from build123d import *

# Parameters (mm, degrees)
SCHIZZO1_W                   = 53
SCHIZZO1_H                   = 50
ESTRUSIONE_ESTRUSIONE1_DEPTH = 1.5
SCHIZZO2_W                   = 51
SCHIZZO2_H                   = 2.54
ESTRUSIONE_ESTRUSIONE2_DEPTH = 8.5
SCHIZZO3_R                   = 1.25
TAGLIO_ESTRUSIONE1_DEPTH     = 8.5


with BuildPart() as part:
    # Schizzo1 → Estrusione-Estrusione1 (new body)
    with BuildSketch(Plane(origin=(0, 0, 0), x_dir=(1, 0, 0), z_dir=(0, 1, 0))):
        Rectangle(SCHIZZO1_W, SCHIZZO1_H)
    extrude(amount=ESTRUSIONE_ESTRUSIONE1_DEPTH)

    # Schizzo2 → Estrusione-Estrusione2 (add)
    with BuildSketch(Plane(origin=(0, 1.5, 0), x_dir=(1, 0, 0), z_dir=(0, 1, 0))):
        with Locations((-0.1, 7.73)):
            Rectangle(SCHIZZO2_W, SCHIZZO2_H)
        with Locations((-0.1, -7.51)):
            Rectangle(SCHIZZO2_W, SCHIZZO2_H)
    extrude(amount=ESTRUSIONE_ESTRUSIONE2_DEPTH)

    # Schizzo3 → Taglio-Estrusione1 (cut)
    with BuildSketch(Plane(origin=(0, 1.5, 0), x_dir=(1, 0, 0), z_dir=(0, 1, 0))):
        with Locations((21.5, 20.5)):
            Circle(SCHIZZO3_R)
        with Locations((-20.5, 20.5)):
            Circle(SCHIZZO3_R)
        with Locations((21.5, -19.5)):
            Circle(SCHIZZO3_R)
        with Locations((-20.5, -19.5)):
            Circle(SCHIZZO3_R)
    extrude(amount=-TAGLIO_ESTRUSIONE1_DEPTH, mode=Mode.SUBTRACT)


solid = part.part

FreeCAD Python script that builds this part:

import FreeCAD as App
import Part
import Sketcher
from FreeCAD import Vector

doc = App.newDocument("Part")
body = doc.addObject("PartDesign::Body", "Body")

# Sketch on XZ plane
sketch1 = body.newObject("Sketcher::SketchObject", "Sketch")
sketch1.AttachmentSupport = (doc.getObject("XZ_Plane"), [""])
sketch1.MapMode = "FlatFace"
sketch1.addGeometry([
    Part.LineSegment(Vector(-26, -25, 0), Vector(-26, 25, 0)),
    Part.LineSegment(Vector(-26, 25, 0), Vector(26, 25, 0)),
    Part.LineSegment(Vector(26, 25, 0), Vector(26, -25, 0)),
    Part.LineSegment(Vector(26, -25, 0), Vector(-26, -25, 0)),
], False)
sketch1.addConstraint([
    Sketcher.Constraint("Coincident", 0, 2, 1, 1),
    Sketcher.Constraint("Coincident", 1, 2, 2, 1),
    Sketcher.Constraint("Coincident", 2, 2, 3, 1),
    Sketcher.Constraint("Coincident", 3, 2, 0, 1),
    Sketcher.Constraint("Vertical", 0),
    Sketcher.Constraint("Horizontal", 1),
    Sketcher.Constraint("Vertical", 2),
    Sketcher.Constraint("Horizontal", 3),
    Sketcher.Constraint("Symmetric", 0, 2, 2, 2, -1, 1),
    Sketcher.Constraint("DistanceX", 1, 1, 1, 2, 53.0),
    Sketcher.Constraint("DistanceY", 0, 1, 0, 2, 50.0),
])
pad1 = body.newObject("PartDesign::Pad", "Pad")
pad1.Profile = sketch1
pad1.Length = 1.5
pad1.Reversed = True

# Sketch on XZ plane
sketch2 = body.newObject("Sketcher::SketchObject", "Sketch001")
sketch2.AttachmentSupport = (doc.getObject("XZ_Plane"), [""])
sketch2.MapMode = "FlatFace"
sketch2.AttachmentOffset = App.Placement(Vector(0, 0, -1.5), App.Rotation())
sketch2.addGeometry([
    Part.LineSegment(Vector(-25.6, -9, 0), Vector(-25.6, -6.5, 0)),  # 0
    Part.LineSegment(Vector(-25.6, -6.5, 0), Vector(25.4, -6.5, 0)),  # 1
    Part.LineSegment(Vector(25.4, -6.5, 0), Vector(25.4, -9, 0)),  # 2
    Part.LineSegment(Vector(25.4, -9, 0), Vector(-25.6, -9, 0)),  # 3
    Part.LineSegment(Vector(-25.6, 6.2, 0), Vector(-25.6, 8.8, 0)),  # 4
    Part.LineSegment(Vector(-25.6, 8.8, 0), Vector(25.4, 8.8, 0)),  # 5
    Part.LineSegment(Vector(25.4, 8.8, 0), Vector(25.4, 6.2, 0)),  # 6
    Part.LineSegment(Vector(25.4, 6.2, 0), Vector(-25.6, 6.2, 0)),  # 7
], False)
sketch2.addConstraint([
    Sketcher.Constraint("Coincident", 0, 2, 1, 1),
    Sketcher.Constraint("Coincident", 1, 2, 2, 1),
    Sketcher.Constraint("Coincident", 2, 2, 3, 1),
    Sketcher.Constraint("Coincident", 3, 2, 0, 1),
    Sketcher.Constraint("Coincident", 4, 2, 5, 1),
    Sketcher.Constraint("Coincident", 5, 2, 6, 1),
    Sketcher.Constraint("Coincident", 6, 2, 7, 1),
    Sketcher.Constraint("Coincident", 7, 2, 4, 1),
    Sketcher.Constraint("Vertical", 0),
    Sketcher.Constraint("Horizontal", 1),
    Sketcher.Constraint("Vertical", 2),
    Sketcher.Constraint("Horizontal", 3),
    Sketcher.Constraint("Vertical", 4),
    Sketcher.Constraint("Horizontal", 5),
    Sketcher.Constraint("Vertical", 6),
    Sketcher.Constraint("Horizontal", 7),
    Sketcher.Constraint("Vertical", 3, 2, 4, 2),
    Sketcher.Constraint("Vertical", 2, 2, 5, 2),
    Sketcher.Constraint("Equal", 2, 4),
    Sketcher.Constraint("DistanceX", 1, 1, 1, 2, 51.0),
    Sketcher.Constraint("DistanceY", 2, 2, -1, 1, 9.0),
    Sketcher.Constraint("DistanceY", 0, 1, 0, 2, 2.54),
    Sketcher.Constraint("DistanceX", 0, 2, -1, 1, 25.6),
    Sketcher.Constraint("DistanceY", 1, 2, 6, 2, 12.7),
])
pad2 = body.newObject("PartDesign::Pad", "Pad001")
pad2.Profile = sketch2
pad2.Length = 8.5
pad2.Reversed = True

# Sketch on XZ plane
sketch3 = body.newObject("Sketcher::SketchObject", "Sketch002")
sketch3.AttachmentSupport = (doc.getObject("XZ_Plane"), [""])
sketch3.MapMode = "FlatFace"
sketch3.AttachmentOffset = App.Placement(Vector(0, 0, -1.5), App.Rotation())
sketch3.addGeometry([
    Part.Circle(Vector(21.5, -20.5, 0), Vector(0, 0, 1), 1.2),
    Part.Circle(Vector(-20.5, -20.5, 0), Vector(0, 0, 1), 1.2),
    Part.Circle(Vector(21.5, 19.5, 0), Vector(0, 0, 1), 1.2),
    Part.Circle(Vector(-20.5, 19.5, 0), Vector(0, 0, 1), 1.2),
], False)
sketch3.addConstraint([
    Sketcher.Constraint("Equal", 0, 1),
    Sketcher.Constraint("Equal", 1, 2),
    Sketcher.Constraint("Equal", 2, 3),
    Sketcher.Constraint("Horizontal", 0, 3, 1, 3),
    Sketcher.Constraint("Horizontal", 2, 3, 3, 3),
    Sketcher.Constraint("Vertical", 0, 3, 2, 3),
    Sketcher.Constraint("Vertical", 1, 3, 3, 3),
    Sketcher.Constraint("Diameter", 0, 2.5),
    Sketcher.Constraint("DistanceX", 1, 3, 0, 3, 42.0),
    Sketcher.Constraint("DistanceY", 0, 3, 2, 3, 40.0),
    Sketcher.Constraint("DistanceX", -1, 1, 0, 3, 21.5),
    Sketcher.Constraint("DistanceY", 0, 3, -1, 1, 20.5),
])
pocket1 = body.newObject("PartDesign::Pocket", "Pocket")
pocket1.Profile = sketch3
pocket1.Length = 8.5
pocket1.Reversed = True

doc.recompute()
